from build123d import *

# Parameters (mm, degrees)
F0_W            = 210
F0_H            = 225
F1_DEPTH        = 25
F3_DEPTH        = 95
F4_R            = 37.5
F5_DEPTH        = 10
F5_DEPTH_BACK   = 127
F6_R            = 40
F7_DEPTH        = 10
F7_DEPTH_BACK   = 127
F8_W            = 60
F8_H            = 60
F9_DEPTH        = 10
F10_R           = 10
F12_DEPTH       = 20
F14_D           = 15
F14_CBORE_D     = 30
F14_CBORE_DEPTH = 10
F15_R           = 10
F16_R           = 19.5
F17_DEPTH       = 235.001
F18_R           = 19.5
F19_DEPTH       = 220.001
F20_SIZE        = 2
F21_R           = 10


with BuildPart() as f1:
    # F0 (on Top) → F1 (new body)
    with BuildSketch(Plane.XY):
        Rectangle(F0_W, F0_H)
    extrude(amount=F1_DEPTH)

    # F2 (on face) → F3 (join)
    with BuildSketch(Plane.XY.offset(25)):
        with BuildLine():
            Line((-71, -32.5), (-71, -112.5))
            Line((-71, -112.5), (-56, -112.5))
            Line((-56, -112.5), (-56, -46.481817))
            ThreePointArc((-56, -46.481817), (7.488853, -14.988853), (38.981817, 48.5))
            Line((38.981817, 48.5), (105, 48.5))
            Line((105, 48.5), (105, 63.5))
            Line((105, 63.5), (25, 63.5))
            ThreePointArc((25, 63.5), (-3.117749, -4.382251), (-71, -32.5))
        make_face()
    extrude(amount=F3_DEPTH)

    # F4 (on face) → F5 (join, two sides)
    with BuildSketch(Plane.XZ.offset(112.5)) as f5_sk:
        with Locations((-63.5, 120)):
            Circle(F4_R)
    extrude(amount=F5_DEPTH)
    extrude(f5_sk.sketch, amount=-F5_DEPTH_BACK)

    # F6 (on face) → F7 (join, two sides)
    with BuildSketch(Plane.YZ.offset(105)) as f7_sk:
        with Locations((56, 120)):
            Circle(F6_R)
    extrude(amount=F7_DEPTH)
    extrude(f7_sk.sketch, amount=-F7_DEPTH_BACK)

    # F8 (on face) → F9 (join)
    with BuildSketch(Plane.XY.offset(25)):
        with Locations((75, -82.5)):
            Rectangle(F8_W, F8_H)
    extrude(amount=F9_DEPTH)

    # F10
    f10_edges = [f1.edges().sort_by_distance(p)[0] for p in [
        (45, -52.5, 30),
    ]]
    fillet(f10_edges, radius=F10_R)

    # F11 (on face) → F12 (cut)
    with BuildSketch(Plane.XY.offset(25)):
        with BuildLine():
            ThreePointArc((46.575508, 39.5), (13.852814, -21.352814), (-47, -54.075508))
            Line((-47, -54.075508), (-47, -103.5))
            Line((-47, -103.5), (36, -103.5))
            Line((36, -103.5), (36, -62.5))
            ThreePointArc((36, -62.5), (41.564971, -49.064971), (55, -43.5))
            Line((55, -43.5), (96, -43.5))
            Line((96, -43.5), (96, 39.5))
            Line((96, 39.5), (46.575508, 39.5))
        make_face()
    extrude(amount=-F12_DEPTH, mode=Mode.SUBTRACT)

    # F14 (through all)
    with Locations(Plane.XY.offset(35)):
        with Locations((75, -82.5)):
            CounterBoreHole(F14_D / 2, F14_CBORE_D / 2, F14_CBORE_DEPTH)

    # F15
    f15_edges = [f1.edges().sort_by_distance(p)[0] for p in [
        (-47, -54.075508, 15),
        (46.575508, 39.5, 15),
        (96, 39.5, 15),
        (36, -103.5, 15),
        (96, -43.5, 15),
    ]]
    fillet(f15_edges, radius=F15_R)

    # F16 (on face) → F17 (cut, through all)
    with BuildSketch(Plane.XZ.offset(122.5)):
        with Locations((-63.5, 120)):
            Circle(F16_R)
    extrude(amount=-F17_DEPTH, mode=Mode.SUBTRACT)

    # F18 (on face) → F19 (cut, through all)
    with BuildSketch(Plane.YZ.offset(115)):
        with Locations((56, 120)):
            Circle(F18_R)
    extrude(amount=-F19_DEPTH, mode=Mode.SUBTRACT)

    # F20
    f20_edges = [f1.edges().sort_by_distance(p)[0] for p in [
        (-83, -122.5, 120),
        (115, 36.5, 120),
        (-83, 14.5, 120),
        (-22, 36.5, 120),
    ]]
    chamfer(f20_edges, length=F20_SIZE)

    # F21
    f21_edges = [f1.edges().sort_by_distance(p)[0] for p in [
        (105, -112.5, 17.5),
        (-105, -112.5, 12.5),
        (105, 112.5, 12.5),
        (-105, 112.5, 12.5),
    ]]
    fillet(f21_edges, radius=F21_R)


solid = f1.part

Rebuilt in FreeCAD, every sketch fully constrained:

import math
import FreeCAD as App
import Part
import Sketcher

V = App.Vector
Q = App.Units.Quantity


def edges_at(feature, points):
    """Names of the edges that pass closest to the given points."""
    edges = feature.Shape.Edges
    near = lambda p: min(range(len(edges)), key=lambda i: edges[i].distToShape(Part.Vertex(*p))[0])
    return sorted({f"Edge{near(p) + 1}" for p in points})


def add_polygon(sketch, points):
    """Adds a closed chain of lines whose ends are joined by coincident constraints."""
    first, n = sketch.GeometryCount, len(points)
    for a, b in zip(points, points[1:] + points[:1]):
        sketch.addGeometry(Part.LineSegment(App.Vector(*a, 0), App.Vector(*b, 0)), False)
    for i in range(n):
        sketch.addConstraint(Sketcher.Constraint("Coincident", first + i, 2, first + (i + 1) % n, 1))

doc = App.newDocument("Part")
params = doc.addObject("Spreadsheet::Sheet", "Params")
for row, (alias, value) in enumerate([
    ("sketch1_width", "210 mm"),
    ("sketch1_height", "225 mm"),
    ("pad1_length", "25 mm"),
    ("sketch2_radius", "111 mm"),
    ("sketch2_radius2", "96 mm"),
    ("sketch2_width", "15 mm"),
    ("sketch2_width2", "80 mm"),
    ("pad2_length", "95 mm"),
    ("sketch3_diameter", "75 mm"),
    ("pad3_length", "10 mm"),
    ("pad3_length2", "127 mm"),
    ("sketch4_diameter", "80 mm"),
    ("pad4_length", "10 mm"),
    ("pad4_length2", "127 mm"),
    ("sketch5_width", "60 mm"),
    ("pad5_length", "10 mm"),
    ("fillet_radius", "10 mm"),
    ("sketch6_radius", "120 mm"),
    ("sketch6_radius2", "18.999999 mm"),
    ("sketch6_width", "83 mm"),
    ("sketch6_width2", "41 mm"),
    ("pocket1_length", "20 mm"),
    ("sketch7_diameter", "15 mm"),
    ("hole_diameter", "15 mm"),
    ("hole_cbore_diameter", "30 mm"),
    ("hole_cbore_depth", "10 mm"),
    ("fillet2_radius", "10 mm"),
    ("sketch8_diameter", "39 mm"),
    ("sketch9_diameter", "39 mm"),
    ("chamfer_size", "2 mm"),
    ("fillet3_radius", "10 mm"),
], start=1):
    params.set(f"A{row}", alias)
    params.set(f"B{row}", "=" + value)
    params.setAlias(f"B{row}", alias)

body = doc.addObject("PartDesign::Body", "Body")

# Sketch on XY plane
sketch1 = doc.addObject("Sketcher::SketchObject", "Sketch")
body.addObject(sketch1)
sketch1.AttachmentSupport = (doc.XY_Plane, [""])
sketch1.MapMode = "FlatFace"
add_polygon(sketch1, [(-105, 112), (-105, -112), (105, -112), (105, 112)])  # lines 0-3
sketch1.addConstraint([
    Sketcher.Constraint("Vertical", 0),
    Sketcher.Constraint("Horizontal", 1),
    Sketcher.Constraint("Vertical", 2),
    Sketcher.Constraint("Horizontal", 3),
    Sketcher.Constraint("Symmetric", 0, 2, 2, 2, -1, 1),
    Sketcher.Constraint("DistanceX", 1, 1, 1, 2, Q("210 mm")),
    Sketcher.Constraint("DistanceY", 0, 2, 0, 1, Q("225 mm")),
])
sketch1.setExpression("Constraints[9]", "Params.sketch1_width")
sketch1.setExpression("Constraints[10]", "Params.sketch1_height")
pad1 = doc.addObject("PartDesign::Pad", "Pad")
body.addObject(pad1)
pad1.Profile = sketch1
pad1.setExpression("Length", "Params.pad1_length")

# Sketch on XY plane
sketch2 = doc.addObject("Sketcher::SketchObject", "Sketch001")
body.addObject(sketch2)
sketch2.AttachmentSupport = (doc.XY_Plane, [""])
sketch2.MapMode = "FlatFace"
sketch2.AttachmentOffset = App.Placement(V(0, 0, 25), App.Rotation())
sketch2.addGeometry([
    Part.LineSegment(V(-71, -32, 0), V(-71, -112, 0)),  # 0
    Part.LineSegment(V(-71, -112, 0), V(-56, -112, 0)),  # 1
    Part.LineSegment(V(-56, -112, 0), V(-56, -46, 0)),  # 2
    Part.ArcOfCircle(Part.Circle(V(-71, 63, 0), V(0, 0, 1), 111), math.radians(-82), math.radians(-8)),  # 3
    Part.LineSegment(V(39, 48, 0), V(105, 48, 0)),  # 4
    Part.LineSegment(V(105, 48, 0), V(105, 64, 0)),  # 5
    Part.LineSegment(V(105, 64, 0), V(25, 64, 0)),  # 6
    Part.ArcOfCircle(Part.Circle(V(-71, 63, 0), V(0, 0, 1), 96), math.radians(-90), math.radians(0)),  # 7
], False)
sketch2.addConstraint([
    Sketcher.Constraint("Coincident", 0, 2, 1, 1),
    Sketcher.Constraint("Coincident", 1, 2, 2, 1),
    Sketcher.Constraint("Coincident", 2, 2, 3, 1),
    Sketcher.Constraint("Coincident", 3, 2, 4, 1),
    Sketcher.Constraint("Coincident", 4, 2, 5, 1),
    Sketcher.Constraint("Coincident", 5, 2, 6, 1),
    Sketcher.Constraint("Coincident", 6, 2, 7, 2),
    Sketcher.Constraint("Coincident", 7, 1, 0, 1),
    Sketcher.Constraint("Vertical", 0),
    Sketcher.Constraint("Horizontal", 1),
    Sketcher.Constraint("Vertical", 2),
    Sketcher.Constraint("Horizontal", 4),
    Sketcher.Constraint("Vertical", 5),
    Sketcher.Constraint("Horizontal", 6),
    Sketcher.Constraint("Coincident", 7, 3, 3, 3),
    Sketcher.Constraint("Horizontal", 7, 3, 5, 2),
    Sketcher.Constraint("Vertical", 7, 3, 0, 2),
    Sketcher.Constraint("Equal", 6, 0),
    Sketcher.Constraint("Equal", 4, 2),
    Sketcher.Constraint("Radius", 3, Q("111 mm")),
    Sketcher.Constraint("Radius", 7, Q("96 mm")),
    Sketcher.Constraint("DistanceX", 1, 1, 1, 2, Q("15 mm")),
    Sketcher.Constraint("DistanceX", 6, 2, 6, 1, Q("80 mm")),
    Sketcher.Constraint("DistanceX", 3, 3, -1, 1, Q("71 mm")),
    Sketcher.Constraint("DistanceY", -1, 1, 3, 3, Q("63.5 mm")),
])
sketch2.setExpression("Constraints[19]", "Params.sketch2_radius")
sketch2.setExpression("Constraints[20]", "Params.sketch2_radius2")
sketch2.setExpression("Constraints[21]", "Params.sketch2_width")
sketch2.setExpression("Constraints[22]", "Params.sketch2_width2")
pad2 = doc.addObject("PartDesign::Pad", "Pad001")
body.addObject(pad2)
pad2.Profile = sketch2
pad2.setExpression("Length", "Params.pad2_length")

# Sketch on XZ plane
sketch3 = doc.addObject("Sketcher::SketchObject", "Sketch002")
body.addObject(sketch3)
sketch3.AttachmentSupport = (doc.XZ_Plane, [""])
sketch3.MapMode = "FlatFace"
sketch3.AttachmentOffset = App.Placement(V(0, 0, 112.5), App.Rotation())
sketch3.addGeometry(Part.Circle(V(-64, 120, 0), V(0, 0, 1), 38), False)
sketch3.addConstraint([
    Sketcher.Constraint("Diameter", 0, Q("75 mm")),
    Sketcher.Constraint("DistanceY", -1, 1, 0, 3, Q("120 mm")),
    Sketcher.Constraint("DistanceX", 0, 3, -1, 1, Q("63.5 mm")),
])
sketch3.setExpression("Constraints[0]", "Params.sketch3_diameter")
pad3 = doc.addObject("PartDesign::Pad", "Pad002")
body.addObject(pad3)
pad3.Profile = sketch3
pad3.Type = "TwoLengths"
pad3.setExpression("Length", "Params.pad3_length")
pad3.setExpression("Length2", "Params.pad3_length2")

# Sketch on YZ plane
sketch4 = doc.addObject("Sketcher::SketchObject", "Sketch003")
body.addObject(sketch4)
sketch4.AttachmentSupport = (doc.YZ_Plane, [""])
sketch4.MapMode = "FlatFace"
sketch4.AttachmentOffset = App.Placement(V(0, 0, 105), App.Rotation())
sketch4.addGeometry(Part.Circle(V(56, 120, 0), V(0, 0, 1), 40), False)
sketch4.addConstraint([
    Sketcher.Constraint("Diameter", 0, Q("80 mm")),
    Sketcher.Constraint("DistanceX", -1, 1, 0, 3, Q("56 mm")),
    Sketcher.Constraint("DistanceY", -1, 1, 0, 3, Q("120 mm")),
])
sketch4.setExpression("Constraints[0]", "Params.sketch4_diameter")
pad4 = doc.addObject("PartDesign::Pad", "Pad003")
body.addObject(pad4)
pad4.Profile = sketch4
pad4.Type = "TwoLengths"
pad4.setExpression("Length", "Params.pad4_length")
pad4.setExpression("Length2", "Params.pad4_length2")

# Sketch on XY plane
sketch5 = doc.addObject("Sketcher::SketchObject", "Sketch004")
body.addObject(sketch5)
sketch5.AttachmentSupport = (doc.XY_Plane, [""])
sketch5.MapMode = "FlatFace"
sketch5.AttachmentOffset = App.Placement(V(0, 0, 25), App.Rotation())
add_polygon(sketch5, [(45, -52), (45, -112), (105, -112), (105, -52)])  # lines 0-3
sketch5.addConstraint([
    Sketcher.Constraint("Vertical", 0),
    Sketcher.Constraint("Horizontal", 1),
    Sketcher.Constraint("Vertical", 2),
    Sketcher.Constraint("Horizontal", 3),
    Sketcher.Constraint("Equal", 3, 0),
    Sketcher.Constraint("DistanceX", 1, 1, 1, 2, Q("60 mm")),
    Sketcher.Constraint("DistanceX", -1, 1, 0, 2, Q("45 mm")),
    Sketcher.Constraint("DistanceY", 0, 2, -1, 1, Q("112.5 mm")),
])
sketch5.setExpression("Constraints[9]", "Params.sketch5_width")
pad5 = doc.addObject("PartDesign::Pad", "Pad004")
body.addObject(pad5)
pad5.Profile = sketch5
pad5.setExpression("Length", "Params.pad5_length")
doc.recompute()

fillet = doc.addObject("PartDesign::Fillet", "Fillet")
body.addObject(fillet)
fillet.Base = (pad5, edges_at(pad5, [(45, -52.5, 30)]))
fillet.setExpression("Radius", "Params.fillet_radius")

# Sketch on XY plane
sketch6 = doc.addObject("Sketcher::SketchObject", "Sketch005")
body.addObject(sketch6)
sketch6.AttachmentSupport = (doc.XY_Plane, [""])
sketch6.MapMode = "FlatFace"
sketch6.AttachmentOffset = App.Placement(V(0, 0, 25), App.Rotation())
sketch6.addGeometry([
    Part.ArcOfCircle(Part.Circle(V(-71, 63, 0), V(0, 0, 1), 120), math.radians(-78), math.radians(-12)),  # 0
    Part.LineSegment(V(-47, -54, 0), V(-47, -104, 0)),  # 1
    Part.LineSegment(V(-47, -104, 0), V(36, -104, 0)),  # 2
    Part.LineSegment(V(36, -104, 0), V(36, -62, 0)),  # 3
    Part.ArcOfCircle(Part.Circle(V(55, -62, 0), V(0, 0, 1), 19), math.radians(90), math.radians(180)),  # 4
    Part.LineSegment(V(55, -44, 0), V(96, -44, 0)),  # 5
    Part.LineSegment(V(96, -44, 0), V(96, 40, 0)),  # 6
    Part.LineSegment(V(96, 40, 0), V(47, 40, 0)),  # 7
], False)
sketch6.addConstraint([
    Sketcher.Constraint("Coincident", 0, 1, 1, 1),
    Sketcher.Constraint("Coincident", 1, 2, 2, 1),
    Sketcher.Constraint("Coincident", 2, 2, 3, 1),
    Sketcher.Constraint("Tangent", 3, 2, 4, 2),
    Sketcher.Constraint("Tangent", 4, 1, 5, 1),
    Sketcher.Constraint("Coincident", 5, 2, 6, 1),
    Sketcher.Constraint("Coincident", 6, 2, 7, 1),
    Sketcher.Constraint("Coincident", 7, 2, 0, 2),
    Sketcher.Constraint("Vertical", 1),
    Sketcher.Constraint("Horizontal", 2),
    Sketcher.Constraint("Vertical", 3),
    Sketcher.Constraint("Horizontal", 5),
    Sketcher.Constraint("Vertical", 6),
    Sketcher.Constraint("Horizontal", 7),
    Sketcher.Constraint("Equal", 7, 1),
    Sketcher.Constraint("Equal", 5, 3),
    Sketcher.Constraint("Equal", 2, 6),
    Sketcher.Constraint("Radius", 0, Q("120 mm")),
    Sketcher.Constraint("Radius", 4, Q("18.999999 mm")),
    Sketcher.Constraint("DistanceX", 2, 1, 2, 2, Q("83 mm")),
    Sketcher.Constraint("DistanceX", 5, 1, 5, 2, Q("41 mm")),
    Sketcher.Constraint("DistanceX", 0, 3, -1, 1, Q("71 mm")),
    Sketcher.Constraint("DistanceX", -1, 1, 4, 3, Q("54.999999 mm")),
    Sketcher.Constraint("DistanceY", -1, 1, 0, 3, Q("63.5 mm")),
])
sketch6.setExpression("Constraints[17]", "Params.sketch6_radius")
sketch6.setExpression("Constraints[18]", "Params.sketch6_radius2")
sketch6.setExpression("Constraints[19]", "Params.sketch6_width")
sketch6.setExpression("Constraints[20]", "Params.sketch6_width2")
pocket1 = doc.addObject("PartDesign::Pocket", "Pocket")
body.addObject(pocket1)
pocket1.Profile = sketch6
pocket1.setExpression("Length", "Params.pocket1_length")

# Sketch on XY plane
sketch7 = doc.addObject("Sketcher::SketchObject", "Sketch006")
body.addObject(sketch7)
sketch7.AttachmentSupport = (doc.XY_Plane, [""])
sketch7.MapMode = "FlatFace"
sketch7.AttachmentOffset = App.Placement(V(0, 0, 35), App.Rotation())
sketch7.addGeometry(Part.Circle(V(75, -82, 0), V(0, 0, 1), 8), False)
sketch7.addConstraint([
    Sketcher.Constraint("Diameter", 0, Q("15 mm")),
    Sketcher.Constraint("DistanceX", -1, 1, 0, 3, Q("75 mm")),
    Sketcher.Constraint("DistanceY", 0, 3, -1, 1, Q("82.5 mm")),
])
sketch7.setExpression("Constraints[0]", "Params.sketch7_diameter")
doc.recompute()
hole = doc.addObject("PartDesign::Hole", "Hole")
body.addObject(hole)
hole.Profile = sketch7
hole.ThreadType = "None"
hole.setExpression("Diameter", "Params.hole_diameter")
hole.DepthType = "ThroughAll"
hole.HoleCutType = "Counterbore"
hole.setExpression("HoleCutDiameter", "Params.hole_cbore_diameter")
hole.setExpression("HoleCutDepth", "Params.hole_cbore_depth")
doc.recompute()

fillet2 = doc.addObject("PartDesign::Fillet", "Fillet001")
body.addObject(fillet2)
fillet2.Base = (hole, edges_at(hole, [
    (-47, -54.076, 15),
    (46.576, 39.5, 15),
    (96, 39.5, 15),
    (36, -103.5, 15),
    (96, -43.5, 15),
]))
fillet2.setExpression("Radius", "Params.fillet2_radius")

# Sketch on XZ plane
sketch8 = doc.addObject("Sketcher::SketchObject", "Sketch007")
body.addObject(sketch8)
sketch8.AttachmentSupport = (doc.XZ_Plane, [""])
sketch8.MapMode = "FlatFace"
sketch8.AttachmentOffset = App.Placement(V(0, 0, 122.5), App.Rotation())
sketch8.addGeometry(Part.Circle(V(-64, 120, 0), V(0, 0, 1), 20), False)
sketch8.addConstraint([
    Sketcher.Constraint("Diameter", 0, Q("39 mm")),
    Sketcher.Constraint("DistanceY", -1, 1, 0, 3, Q("120 mm")),
    Sketcher.Constraint("DistanceX", 0, 3, -1, 1, Q("63.5 mm")),
])
sketch8.setExpression("Constraints[0]", "Params.sketch8_diameter")
pocket2 = doc.addObject("PartDesign::Pocket", "Pocket001")
body.addObject(pocket2)
pocket2.Profile = sketch8
pocket2.Type = "ThroughAll"

# Sketch on YZ plane
sketch9 = doc.addObject("Sketcher::SketchObject", "Sketch008")
body.addObject(sketch9)
sketch9.AttachmentSupport = (doc.YZ_Plane, [""])
sketch9.MapMode = "FlatFace"
sketch9.AttachmentOffset = App.Placement(V(0, 0, 115), App.Rotation())
sketch9.addGeometry(Part.Circle(V(56, 120, 0), V(0, 0, 1), 20), False)
sketch9.addConstraint([
    Sketcher.Constraint("Diameter", 0, Q("39 mm")),
    Sketcher.Constraint("DistanceX", -1, 1, 0, 3, Q("56 mm")),
    Sketcher.Constraint("DistanceY", -1, 1, 0, 3, Q("120 mm")),
])
sketch9.setExpression("Constraints[0]", "Params.sketch9_diameter")
pocket3 = doc.addObject("PartDesign::Pocket", "Pocket002")
body.addObject(pocket3)
pocket3.Profile = sketch9
pocket3.Type = "ThroughAll"
doc.recompute()

chamfer = doc.addObject("PartDesign::Chamfer", "Chamfer")
body.addObject(chamfer)
chamfer.Base = (pocket3, edges_at(pocket3, [
    (-83, -122.5, 120),
    (115, 36.5, 120),
    (-83, 14.5, 120),
    (-22, 36.5, 120),
]))
chamfer.setExpression("Size", "Params.chamfer_size")
doc.recompute()

fillet3 = doc.addObject("PartDesign::Fillet", "Fillet002")
body.addObject(fillet3)
fillet3.Base = (chamfer, edges_at(chamfer, [
    (105, -112.5, 17.5),
    (-105, -112.5, 12.5),
    (105, 112.5, 12.5),
    (-105, 112.5, 12.5),
]))
fillet3.setExpression("Radius", "Params.fillet3_radius")

doc.recompute()
